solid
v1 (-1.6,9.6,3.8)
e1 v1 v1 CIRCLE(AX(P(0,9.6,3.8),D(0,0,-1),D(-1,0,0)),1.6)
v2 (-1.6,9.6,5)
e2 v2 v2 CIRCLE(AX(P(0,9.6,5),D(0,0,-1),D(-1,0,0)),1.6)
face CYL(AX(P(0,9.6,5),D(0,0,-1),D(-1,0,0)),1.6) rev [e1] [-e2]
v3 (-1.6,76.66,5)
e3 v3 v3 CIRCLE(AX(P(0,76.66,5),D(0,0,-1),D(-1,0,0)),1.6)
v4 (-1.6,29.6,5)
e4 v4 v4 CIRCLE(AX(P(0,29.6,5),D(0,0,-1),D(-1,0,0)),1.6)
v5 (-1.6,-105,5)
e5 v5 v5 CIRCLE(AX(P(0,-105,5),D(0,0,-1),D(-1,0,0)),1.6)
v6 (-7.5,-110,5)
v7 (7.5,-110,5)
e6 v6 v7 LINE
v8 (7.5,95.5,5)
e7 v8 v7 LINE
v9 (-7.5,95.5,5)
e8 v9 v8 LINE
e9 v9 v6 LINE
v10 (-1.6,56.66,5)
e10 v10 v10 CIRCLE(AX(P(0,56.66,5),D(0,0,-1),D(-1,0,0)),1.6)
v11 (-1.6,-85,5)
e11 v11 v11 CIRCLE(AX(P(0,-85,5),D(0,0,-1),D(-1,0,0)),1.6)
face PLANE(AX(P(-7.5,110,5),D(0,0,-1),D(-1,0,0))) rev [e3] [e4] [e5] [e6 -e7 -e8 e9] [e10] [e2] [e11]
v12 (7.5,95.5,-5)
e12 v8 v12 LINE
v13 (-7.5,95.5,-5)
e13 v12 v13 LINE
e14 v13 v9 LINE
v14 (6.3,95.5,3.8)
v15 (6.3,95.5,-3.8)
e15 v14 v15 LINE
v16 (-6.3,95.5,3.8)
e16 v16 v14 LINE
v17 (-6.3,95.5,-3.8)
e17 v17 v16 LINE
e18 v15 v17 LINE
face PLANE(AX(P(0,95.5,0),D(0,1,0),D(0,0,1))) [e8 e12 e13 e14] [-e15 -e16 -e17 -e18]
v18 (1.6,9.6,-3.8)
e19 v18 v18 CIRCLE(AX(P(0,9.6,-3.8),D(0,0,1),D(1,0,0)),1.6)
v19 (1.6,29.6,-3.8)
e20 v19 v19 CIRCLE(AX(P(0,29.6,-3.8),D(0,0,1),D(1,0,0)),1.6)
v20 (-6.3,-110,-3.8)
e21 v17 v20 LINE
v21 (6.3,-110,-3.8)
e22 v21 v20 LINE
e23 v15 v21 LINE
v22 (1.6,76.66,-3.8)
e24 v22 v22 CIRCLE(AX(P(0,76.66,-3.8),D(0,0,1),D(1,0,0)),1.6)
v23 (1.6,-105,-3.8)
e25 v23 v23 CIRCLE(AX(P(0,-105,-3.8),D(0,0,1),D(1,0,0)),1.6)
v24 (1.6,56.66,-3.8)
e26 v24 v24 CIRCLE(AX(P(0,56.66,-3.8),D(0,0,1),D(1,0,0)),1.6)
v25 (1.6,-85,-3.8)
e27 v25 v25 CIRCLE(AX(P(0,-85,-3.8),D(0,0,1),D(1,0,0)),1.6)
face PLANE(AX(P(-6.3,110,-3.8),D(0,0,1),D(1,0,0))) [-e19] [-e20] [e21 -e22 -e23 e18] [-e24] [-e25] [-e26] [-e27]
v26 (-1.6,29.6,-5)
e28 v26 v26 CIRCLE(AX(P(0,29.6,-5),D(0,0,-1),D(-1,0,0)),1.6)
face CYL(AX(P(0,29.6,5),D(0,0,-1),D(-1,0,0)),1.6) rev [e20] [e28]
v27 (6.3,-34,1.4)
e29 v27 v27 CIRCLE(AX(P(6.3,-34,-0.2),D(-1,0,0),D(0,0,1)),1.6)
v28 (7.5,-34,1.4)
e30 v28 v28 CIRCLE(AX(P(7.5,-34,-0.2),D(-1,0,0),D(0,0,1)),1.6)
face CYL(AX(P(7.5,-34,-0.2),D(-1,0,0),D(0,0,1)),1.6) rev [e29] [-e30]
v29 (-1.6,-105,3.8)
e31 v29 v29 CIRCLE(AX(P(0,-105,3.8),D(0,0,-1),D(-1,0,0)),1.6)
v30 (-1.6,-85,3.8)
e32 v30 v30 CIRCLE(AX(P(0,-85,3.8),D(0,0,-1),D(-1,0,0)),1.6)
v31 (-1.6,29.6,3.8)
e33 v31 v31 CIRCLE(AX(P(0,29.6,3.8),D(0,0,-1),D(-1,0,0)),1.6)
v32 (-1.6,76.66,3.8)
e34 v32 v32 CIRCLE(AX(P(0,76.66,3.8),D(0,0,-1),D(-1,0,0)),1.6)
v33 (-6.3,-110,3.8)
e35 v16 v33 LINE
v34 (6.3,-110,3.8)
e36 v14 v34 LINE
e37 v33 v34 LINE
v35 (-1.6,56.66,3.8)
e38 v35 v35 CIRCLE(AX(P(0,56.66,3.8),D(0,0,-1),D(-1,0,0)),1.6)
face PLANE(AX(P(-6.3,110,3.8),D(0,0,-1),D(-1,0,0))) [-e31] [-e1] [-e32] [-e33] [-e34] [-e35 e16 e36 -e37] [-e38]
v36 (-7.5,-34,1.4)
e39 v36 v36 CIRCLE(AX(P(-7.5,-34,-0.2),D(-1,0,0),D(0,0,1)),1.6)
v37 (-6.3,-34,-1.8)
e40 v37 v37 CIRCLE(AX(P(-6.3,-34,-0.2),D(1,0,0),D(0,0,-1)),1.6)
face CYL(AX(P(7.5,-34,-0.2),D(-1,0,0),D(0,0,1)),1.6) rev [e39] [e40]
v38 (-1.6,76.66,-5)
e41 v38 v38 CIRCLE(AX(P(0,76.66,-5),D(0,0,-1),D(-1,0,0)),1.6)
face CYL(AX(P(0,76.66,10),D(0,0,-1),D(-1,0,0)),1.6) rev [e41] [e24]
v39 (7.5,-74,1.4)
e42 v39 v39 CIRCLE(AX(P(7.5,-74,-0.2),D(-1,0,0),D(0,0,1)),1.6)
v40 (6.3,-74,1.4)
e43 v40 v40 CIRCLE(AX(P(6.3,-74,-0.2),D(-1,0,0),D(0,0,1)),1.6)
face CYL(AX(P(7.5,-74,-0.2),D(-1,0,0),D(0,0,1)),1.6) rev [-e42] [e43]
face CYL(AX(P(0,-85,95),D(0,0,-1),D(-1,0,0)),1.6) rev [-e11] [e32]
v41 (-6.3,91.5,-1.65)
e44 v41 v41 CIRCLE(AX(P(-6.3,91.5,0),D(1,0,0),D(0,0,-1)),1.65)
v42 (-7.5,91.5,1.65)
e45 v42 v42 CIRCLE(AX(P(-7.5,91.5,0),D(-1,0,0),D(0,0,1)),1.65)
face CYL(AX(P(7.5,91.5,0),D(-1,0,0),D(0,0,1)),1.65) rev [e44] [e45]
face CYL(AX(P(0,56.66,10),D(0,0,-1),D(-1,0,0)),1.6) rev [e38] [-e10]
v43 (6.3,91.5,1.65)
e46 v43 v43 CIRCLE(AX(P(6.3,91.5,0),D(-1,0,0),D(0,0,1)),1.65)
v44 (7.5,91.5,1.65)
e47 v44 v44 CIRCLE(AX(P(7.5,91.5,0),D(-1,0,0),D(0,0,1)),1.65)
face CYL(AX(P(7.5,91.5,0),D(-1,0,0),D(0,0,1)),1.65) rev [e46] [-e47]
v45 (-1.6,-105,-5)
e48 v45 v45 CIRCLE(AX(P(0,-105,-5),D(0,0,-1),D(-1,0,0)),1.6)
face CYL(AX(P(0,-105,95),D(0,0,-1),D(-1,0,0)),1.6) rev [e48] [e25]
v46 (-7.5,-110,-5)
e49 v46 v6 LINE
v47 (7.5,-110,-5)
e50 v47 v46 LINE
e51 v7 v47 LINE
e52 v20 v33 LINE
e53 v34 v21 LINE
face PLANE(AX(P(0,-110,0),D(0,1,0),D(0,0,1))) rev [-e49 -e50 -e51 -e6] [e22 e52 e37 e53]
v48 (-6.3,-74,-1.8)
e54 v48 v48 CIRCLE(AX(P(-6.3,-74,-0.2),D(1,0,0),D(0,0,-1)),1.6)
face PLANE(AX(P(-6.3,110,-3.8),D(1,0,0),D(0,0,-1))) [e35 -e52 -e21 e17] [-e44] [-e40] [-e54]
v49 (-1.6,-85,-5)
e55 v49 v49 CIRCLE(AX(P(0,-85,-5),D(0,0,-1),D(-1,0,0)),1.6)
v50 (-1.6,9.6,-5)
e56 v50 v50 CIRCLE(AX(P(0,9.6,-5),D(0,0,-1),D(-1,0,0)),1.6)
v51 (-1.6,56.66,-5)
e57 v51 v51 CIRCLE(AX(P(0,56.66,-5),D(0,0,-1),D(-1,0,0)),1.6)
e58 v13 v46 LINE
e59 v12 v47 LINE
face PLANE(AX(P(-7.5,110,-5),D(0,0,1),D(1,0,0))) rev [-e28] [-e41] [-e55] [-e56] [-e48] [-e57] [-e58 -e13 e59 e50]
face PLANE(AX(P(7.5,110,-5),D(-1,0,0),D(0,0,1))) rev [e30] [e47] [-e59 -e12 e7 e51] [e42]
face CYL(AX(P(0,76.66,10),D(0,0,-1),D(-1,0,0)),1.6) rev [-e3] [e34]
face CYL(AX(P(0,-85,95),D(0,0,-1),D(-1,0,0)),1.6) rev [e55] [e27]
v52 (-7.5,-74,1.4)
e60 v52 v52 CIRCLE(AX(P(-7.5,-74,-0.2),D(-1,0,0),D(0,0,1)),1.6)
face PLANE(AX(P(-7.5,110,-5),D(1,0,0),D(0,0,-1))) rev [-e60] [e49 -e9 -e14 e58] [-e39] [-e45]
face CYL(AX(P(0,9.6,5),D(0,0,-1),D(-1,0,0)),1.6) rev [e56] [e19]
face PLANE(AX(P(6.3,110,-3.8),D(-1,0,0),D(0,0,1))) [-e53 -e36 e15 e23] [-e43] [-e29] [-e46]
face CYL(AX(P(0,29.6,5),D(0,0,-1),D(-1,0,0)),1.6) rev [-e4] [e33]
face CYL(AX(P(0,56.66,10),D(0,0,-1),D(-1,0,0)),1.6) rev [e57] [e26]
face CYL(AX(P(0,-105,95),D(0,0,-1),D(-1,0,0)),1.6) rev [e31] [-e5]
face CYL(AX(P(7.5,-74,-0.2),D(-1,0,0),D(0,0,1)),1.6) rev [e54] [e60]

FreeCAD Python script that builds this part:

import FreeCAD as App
import Part
import Sketcher

V = App.Vector
Q = App.Units.Quantity

doc = App.newDocument("Part")
body = doc.addObject("PartDesign::Body", "Body")

# Sketch on XZ plane
sketch1 = body.newObject("Sketcher::SketchObject", "Sketch")
sketch1.AttachmentSupport = (doc.getObject("XZ_Plane"), [""])
sketch1.MapMode = "FlatFace"
sketch1.addGeometry([
    Part.LineSegment(V(-8, -5, 0), V(-8, 5, 0)),  # 0
    Part.LineSegment(V(-8, 5, 0), V(8, 5, 0)),  # 1
    Part.LineSegment(V(8, 5, 0), V(8, -5, 0)),  # 2
    Part.LineSegment(V(8, -5, 0), V(-8, -5, 0)),  # 3
    Part.LineSegment(V(6, 4, 0), V(-6, 4, 0)),  # 4
    Part.LineSegment(V(-6, 4, 0), V(-6, -4, 0)),  # 5
    Part.LineSegment(V(-6, -4, 0), V(6, -4, 0)),  # 6
    Part.LineSegment(V(6, -4, 0), V(6, 4, 0)),  # 7
], False)
sketch1.addConstraint([
    Sketcher.Constraint("Coincident", 0, 2, 1, 1),
    Sketcher.Constraint("Coincident", 1, 2, 2, 1),
    Sketcher.Constraint("Coincident", 2, 2, 3, 1),
    Sketcher.Constraint("Coincident", 3, 2, 0, 1),
    Sketcher.Constraint("Coincident", 4, 2, 5, 1),
    Sketcher.Constraint("Coincident", 5, 2, 6, 1),
    Sketcher.Constraint("Coincident", 6, 2, 7, 1),
    Sketcher.Constraint("Coincident", 7, 2, 4, 1),
    Sketcher.Constraint("Vertical", 0),
    Sketcher.Constraint("Horizontal", 1),
    Sketcher.Constraint("Vertical", 2),
    Sketcher.Constraint("Horizontal", 3),
    Sketcher.Constraint("Horizontal", 4),
    Sketcher.Constraint("Vertical", 5),
    Sketcher.Constraint("Horizontal", 6),
    Sketcher.Constraint("Vertical", 7),
    Sketcher.Constraint("Symmetric", 0, 2, 2, 2, -1, 1),
    Sketcher.Constraint("Symmetric", 4, 2, 6, 2, -1, 1),
    Sketcher.Constraint("DistanceX", 1, 1, 1, 2, Q("15 mm")),
    Sketcher.Constraint("DistanceY", 0, 1, 0, 2, Q("10 mm")),
    Sketcher.Constraint("DistanceX", 4, 2, 4, 1, Q("12.6 mm")),
    Sketcher.Constraint("DistanceY", 5, 2, 5, 1, Q("7.6 mm")),
])
pad1 = body.newObject("PartDesign::Pad", "Pad")
pad1.Profile = sketch1
pad1.Length = 220
pad1.Midplane = True

# Sketch on XY plane
sketch2 = body.newObject("Sketcher::SketchObject", "Sketch001")
sketch2.AttachmentSupport = (doc.getObject("XY_Plane"), [""])
sketch2.MapMode = "FlatFace"
sketch2.AttachmentOffset = App.Placement(V(0, 0, -5), App.Rotation())
sketch2.addGeometry([
    Part.Circle(V(0, -85, 0), V(0, 0, 1), 1.6),
    Part.Circle(V(0, -105, 0), V(0, 0, 1), 1.6),
], False)
sketch2.addConstraint([
    Sketcher.Constraint("Equal", 0, 1),
    Sketcher.Constraint("PointOnObject", 0, 3, -2),
    Sketcher.Constraint("PointOnObject", 1, 3, -2),
    Sketcher.Constraint("Diameter", 0, Q("3.2 mm")),
    Sketcher.Constraint("DistanceY", 0, 3, -1, 1, Q("85 mm")),
    Sketcher.Constraint("DistanceY", 1, 3, -1, 1, Q("105 mm")),
])
pocket1 = body.newObject("PartDesign::Pocket", "Pocket")
pocket1.Profile = sketch2
pocket1.Length = 100
pocket1.Reversed = True

# Sketch on YZ plane
sketch3 = body.newObject("Sketcher::SketchObject", "Sketch002")
sketch3.AttachmentSupport = (doc.getObject("YZ_Plane"), [""])
sketch3.MapMode = "FlatFace"
sketch3.AttachmentOffset = App.Placement(V(0, 0, -7.5), App.Rotation())
sketch3.addGeometry([
    Part.Circle(V(-74, -0.2, 0), V(0, 0, 1), 1.6),
    Part.Circle(V(-34, -0.2, 0), V(0, 0, 1), 1.6),
], False)
sketch3.addConstraint([
    Sketcher.Constraint("Equal", 0, 1),
    Sketcher.Constraint("Horizontal", 0, 3, 1, 3),
    Sketcher.Constraint("Diameter", 0, Q("3.2 mm")),
    Sketcher.Constraint("DistanceX", 0, 3, -1, 1, Q("74 mm")),
    Sketcher.Constraint("DistanceX", 1, 3, -1, 1, Q("34 mm")),
    Sketcher.Constraint("DistanceY", 0, 3, -1, 1, Q("0.2 mm")),
])
pocket2 = body.newObject("PartDesign::Pocket", "Pocket001")
pocket2.Profile = sketch3
pocket2.Length = 15
pocket2.Reversed = True

# Sketch on XZ plane
sketch4 = body.newObject("Sketcher::SketchObject", "Sketch003")
sketch4.AttachmentSupport = (doc.getObject("XZ_Plane"), [""])
sketch4.MapMode = "FlatFace"
sketch4.AttachmentOffset = App.Placement(V(0, 0, -110), App.Rotation())
sketch4.addGeometry([
    Part.LineSegment(V(-8, -5, 0), V(-8, 5, 0)),
    Part.LineSegment(V(-8, 5, 0), V(8, 5, 0)),
    Part.LineSegment(V(8, 5, 0), V(8, -5, 0)),
    Part.LineSegment(V(8, -5, 0), V(-8, -5, 0)),
], False)
sketch4.addConstraint([
    Sketcher.Constraint("Coincident", 0, 2, 1, 1),
    Sketcher.Constraint("Coincident", 1, 2, 2, 1),
    Sketcher.Constraint("Coincident", 2, 2, 3, 1),
    Sketcher.Constraint("Coincident", 3, 2, 0, 1),
    Sketcher.Constraint("Vertical", 0),
    Sketcher.Constraint("Horizontal", 1),
    Sketcher.Constraint("Vertical", 2),
    Sketcher.Constraint("Horizontal", 3),
    Sketcher.Constraint("Symmetric", 0, 2, 2, 2, -1, 1),
    Sketcher.Constraint("DistanceX", 1, 1, 1, 2, Q("15 mm")),
    Sketcher.Constraint("DistanceY", 0, 1, 0, 2, Q("10 mm")),
])
pocket3 = body.newObject("PartDesign::Pocket", "Pocket002")
pocket3.Profile = sketch4
pocket3.Length = 14.5
pocket3.Reversed = True

# Sketch on XY plane
sketch5 = body.newObject("Sketcher::SketchObject", "Sketch004")
sketch5.AttachmentSupport = (doc.getObject("XY_Plane"), [""])
sketch5.MapMode = "FlatFace"
sketch5.AttachmentOffset = App.Placement(V(0, 0, -5), App.Rotation())
sketch5.addGeometry([
    Part.Circle(V(0, 56.7, 0), V(0, 0, 1), 1.6),
    Part.Circle(V(0, 76.7, 0), V(0, 0, 1), 1.6),
], False)
sketch5.addConstraint([
    Sketcher.Constraint("Equal", 0, 1),
    Sketcher.Constraint("PointOnObject", 0, 3, -2),
    Sketcher.Constraint("PointOnObject", 1, 3, -2),
    Sketcher.Constraint("Diameter", 0, Q("3.2 mm")),
    Sketcher.Constraint("DistanceY", 0, 3, 1, 3, Q("20 mm")),
    Sketcher.Constraint("DistanceY", -1, 1, 0, 3, Q("56.66 mm")),
])
pocket4 = body.newObject("PartDesign::Pocket", "Pocket003")
pocket4.Profile = sketch5
pocket4.Length = 15
pocket4.Reversed = True

# Sketch on YZ plane
sketch6 = body.newObject("Sketcher::SketchObject", "Sketch005")
sketch6.AttachmentSupport = (doc.getObject("YZ_Plane"), [""])
sketch6.MapMode = "FlatFace"
sketch6.AttachmentOffset = App.Placement(V(0, 0, -7.5), App.Rotation())
sketch6.addGeometry(Part.Circle(V(91.5, 0, 0), V(0, 0, 1), 1.6), False)
sketch6.addConstraint([
    Sketcher.Constraint("PointOnObject", 0, 3, -1),
    Sketcher.Constraint("Diameter", 0, Q("3.3 mm")),
    Sketcher.Constraint("DistanceX", -1, 1, 0, 3, Q("91.5 mm")),
])
pocket5 = body.newObject("PartDesign::Pocket", "Pocket004")
pocket5.Profile = sketch6
pocket5.Length = 15
pocket5.Reversed = True

# Sketch on XY plane
sketch7 = body.newObject("Sketcher::SketchObject", "Sketch006")
sketch7.AttachmentSupport = (doc.getObject("XY_Plane"), [""])
sketch7.MapMode = "FlatFace"
sketch7.AttachmentOffset = App.Placement(V(0, 0, -5), App.Rotation())
sketch7.addGeometry([
    Part.Circle(V(0, 9.6, 0), V(0, 0, 1), 1.6),
    Part.Circle(V(0, 29.6, 0), V(0, 0, 1), 1.6),
], False)
sketch7.addConstraint([
    Sketcher.Constraint("Equal", 0, 1),
    Sketcher.Constraint("PointOnObject", 0, 3, -2),
    Sketcher.Constraint("PointOnObject", 1, 3, -2),
    Sketcher.Constraint("Diameter", 0, Q("3.2 mm")),
    Sketcher.Constraint("DistanceY", 0, 3, 1, 3, Q("20 mm")),
    Sketcher.Constraint("DistanceY", -1, 1, 0, 3, Q("9.6 mm")),
])
pocket6 = body.newObject("PartDesign::Pocket", "Pocket005")
pocket6.Profile = sketch7
pocket6.Length = 10
pocket6.Reversed = True

doc.recompute()
